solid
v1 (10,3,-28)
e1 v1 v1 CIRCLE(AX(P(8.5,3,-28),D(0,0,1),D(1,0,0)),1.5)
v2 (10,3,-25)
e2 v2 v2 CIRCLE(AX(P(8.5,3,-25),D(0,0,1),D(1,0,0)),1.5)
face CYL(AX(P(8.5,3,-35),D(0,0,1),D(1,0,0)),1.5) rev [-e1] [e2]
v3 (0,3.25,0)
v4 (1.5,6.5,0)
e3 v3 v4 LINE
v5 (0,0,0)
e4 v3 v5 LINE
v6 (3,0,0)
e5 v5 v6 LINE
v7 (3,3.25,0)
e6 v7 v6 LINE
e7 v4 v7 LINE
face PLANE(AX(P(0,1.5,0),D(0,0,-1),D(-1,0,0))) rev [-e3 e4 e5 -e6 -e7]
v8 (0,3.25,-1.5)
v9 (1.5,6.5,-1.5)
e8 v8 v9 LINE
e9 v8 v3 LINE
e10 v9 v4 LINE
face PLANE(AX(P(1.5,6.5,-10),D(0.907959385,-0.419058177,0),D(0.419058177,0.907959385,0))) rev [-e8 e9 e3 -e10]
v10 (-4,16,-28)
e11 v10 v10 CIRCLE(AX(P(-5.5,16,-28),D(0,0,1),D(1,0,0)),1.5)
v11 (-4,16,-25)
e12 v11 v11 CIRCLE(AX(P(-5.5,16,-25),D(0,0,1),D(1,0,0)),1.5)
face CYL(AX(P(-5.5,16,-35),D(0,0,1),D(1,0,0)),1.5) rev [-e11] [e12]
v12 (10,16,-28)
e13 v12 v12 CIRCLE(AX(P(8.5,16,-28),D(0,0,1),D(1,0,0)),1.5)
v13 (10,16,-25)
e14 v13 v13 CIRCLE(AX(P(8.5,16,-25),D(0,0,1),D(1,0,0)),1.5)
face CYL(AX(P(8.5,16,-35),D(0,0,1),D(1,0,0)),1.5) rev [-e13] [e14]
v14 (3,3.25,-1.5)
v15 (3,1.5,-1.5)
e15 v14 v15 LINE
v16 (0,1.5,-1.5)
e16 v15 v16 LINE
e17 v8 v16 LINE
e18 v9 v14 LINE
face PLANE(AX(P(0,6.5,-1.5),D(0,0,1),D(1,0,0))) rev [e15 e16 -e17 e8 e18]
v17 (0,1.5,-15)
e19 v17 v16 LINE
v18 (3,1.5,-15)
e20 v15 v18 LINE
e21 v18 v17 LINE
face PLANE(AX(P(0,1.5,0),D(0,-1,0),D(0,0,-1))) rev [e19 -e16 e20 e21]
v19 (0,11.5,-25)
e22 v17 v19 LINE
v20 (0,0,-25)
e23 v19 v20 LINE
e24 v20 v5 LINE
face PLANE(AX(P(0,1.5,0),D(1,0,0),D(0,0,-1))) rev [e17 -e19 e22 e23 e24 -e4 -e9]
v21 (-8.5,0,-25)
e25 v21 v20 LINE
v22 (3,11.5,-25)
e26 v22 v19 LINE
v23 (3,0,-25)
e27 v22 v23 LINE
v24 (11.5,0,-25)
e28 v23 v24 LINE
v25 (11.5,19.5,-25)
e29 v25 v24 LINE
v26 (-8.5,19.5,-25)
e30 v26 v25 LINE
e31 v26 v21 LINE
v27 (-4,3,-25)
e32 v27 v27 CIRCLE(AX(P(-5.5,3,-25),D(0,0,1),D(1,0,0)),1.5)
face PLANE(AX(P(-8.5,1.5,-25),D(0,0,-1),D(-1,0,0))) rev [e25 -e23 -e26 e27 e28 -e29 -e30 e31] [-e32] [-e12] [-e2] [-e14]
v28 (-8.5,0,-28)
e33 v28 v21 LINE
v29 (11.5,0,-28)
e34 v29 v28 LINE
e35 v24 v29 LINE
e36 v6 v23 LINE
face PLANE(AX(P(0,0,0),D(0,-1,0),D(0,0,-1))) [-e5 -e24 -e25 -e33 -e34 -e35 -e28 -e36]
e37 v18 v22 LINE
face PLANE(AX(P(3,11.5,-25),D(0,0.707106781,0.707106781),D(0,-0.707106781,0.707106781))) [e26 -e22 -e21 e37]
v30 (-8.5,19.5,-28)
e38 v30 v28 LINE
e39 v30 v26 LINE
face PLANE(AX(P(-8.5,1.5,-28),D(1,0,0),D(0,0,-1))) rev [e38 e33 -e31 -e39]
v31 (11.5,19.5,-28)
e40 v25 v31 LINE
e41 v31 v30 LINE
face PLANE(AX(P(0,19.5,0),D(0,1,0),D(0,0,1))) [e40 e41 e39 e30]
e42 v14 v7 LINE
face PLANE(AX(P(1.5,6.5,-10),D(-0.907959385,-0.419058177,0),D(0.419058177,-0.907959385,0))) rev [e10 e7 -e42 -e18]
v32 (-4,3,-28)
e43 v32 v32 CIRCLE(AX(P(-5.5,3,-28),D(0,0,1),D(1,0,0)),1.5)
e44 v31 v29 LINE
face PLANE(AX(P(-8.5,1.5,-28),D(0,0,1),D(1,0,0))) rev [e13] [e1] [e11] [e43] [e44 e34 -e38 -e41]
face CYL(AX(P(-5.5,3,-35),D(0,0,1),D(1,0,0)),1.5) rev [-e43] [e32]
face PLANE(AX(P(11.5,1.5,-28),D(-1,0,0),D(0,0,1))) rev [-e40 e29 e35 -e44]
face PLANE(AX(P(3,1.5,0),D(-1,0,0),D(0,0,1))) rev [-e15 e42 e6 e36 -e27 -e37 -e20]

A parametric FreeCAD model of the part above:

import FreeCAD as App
import Part
import Sketcher
from FreeCAD import Vector


def add_polygon(sketch, points):
    """Adds a closed chain of lines whose ends are joined by coincident constraints."""
    first, n = sketch.GeometryCount, len(points)
    for a, b in zip(points, points[1:] + points[:1]):
        sketch.addGeometry(Part.LineSegment(App.Vector(*a, 0), App.Vector(*b, 0)), False)
    for i in range(n):
        sketch.addConstraint(Sketcher.Constraint("Coincident", first + i, 2, first + (i + 1) % n, 1))

doc = App.newDocument("Part")
params = doc.addObject("Spreadsheet::Sheet", "Params")
for row, (alias, value) in enumerate([
    ("sketch1_width", "20 mm"),
    ("sketch1_width2", "3 mm"),
    ("sketch1_height", "25 mm"),
    ("pad1_length", "1.5 mm"),
    ("sketch2_width", "3 mm"),
    ("sketch2_height", "1.5 mm"),
    ("pad2_length", "5 mm"),
    ("sketch3_width", "20 mm"),
    ("sketch3_height", "3 mm"),
    ("pad3_length", "18 mm"),
    ("pocket1_length", "10 mm"),
    ("sketch5_diameter", "3 mm"),
    ("pocket2_length", "10 mm"),
    ("sketch6_width", "10 mm"),
    ("pad4_length", "3 mm"),
], start=1):
    params.set(f"A{row}", alias)
    params.set(f"B{row}", "=" + value)
    params.setAlias(f"B{row}", alias)

body = doc.addObject("PartDesign::Body", "Body")

sketch1 = body.newObject("Sketcher::SketchObject", "Sketch")
sketch1.AttachmentSupport = (doc.getObject("XZ_Plane"), [""])
sketch1.MapMode = "FlatFace"
add_polygon(sketch1, [(3, -25), (11.5, -25), (11.5, -28), (-8.5, -28), (-8.5, -25), (0, -25), (0, 0), (3, 0)])
sketch1.addConstraint([
    Sketcher.Constraint("Horizontal", 0),
    Sketcher.Constraint("Vertical", 1),
    Sketcher.Constraint("Horizontal", 2),
    Sketcher.Constraint("Vertical", 3),
    Sketcher.Constraint("Horizontal", 4),
    Sketcher.Constraint("Vertical", 5),
    Sketcher.Constraint("Horizontal", 6),
    Sketcher.Constraint("Vertical", 7),
    Sketcher.Constraint("Coincident", 5, 2, -1, 1),
    Sketcher.Constraint("Horizontal", 0, 2, 3, 2),
    Sketcher.Constraint("Equal", 0, 4),
    Sketcher.Constraint("Equal", 6, 1),
    Sketcher.Constraint("DistanceX", 2, 2, 2, 1, 20.0),
    Sketcher.Constraint("DistanceX", 6, 1, 6, 2, 3.0),
    Sketcher.Constraint("DistanceY", 5, 1, 5, 2, 25.0),
])
sketch1.setExpression("Constraints[20]", "Params.sketch1_width")
sketch1.setExpression("Constraints[21]", "Params.sketch1_width2")
sketch1.setExpression("Constraints[22]", "Params.sketch1_height")
pad1 = body.newObject("PartDesign::Pad", "Pad")
pad1.Profile = sketch1
pad1.setExpression("Length", "Params.pad1_length")
pad1.Reversed = True

sketch2 = body.newObject("Sketcher::SketchObject", "Sketch001")
sketch2.AttachmentSupport = (doc.getObject("XZ_Plane"), [""])
sketch2.MapMode = "FlatFace"
sketch2.AttachmentOffset = App.Placement(Vector(0, 0, -1.5), App.Rotation())
add_polygon(sketch2, [(0, -1.5), (0, 0), (3, 0), (3, -1.5)])
sketch2.addConstraint([
    Sketcher.Constraint("Vertical", 0),
    Sketcher.Constraint("Horizontal", 1),
    Sketcher.Constraint("Vertical", 2),
    Sketcher.Constraint("Horizontal", 3),
    Sketcher.Constraint("Coincident", 0, 2, -1, 1),
    Sketcher.Constraint("DistanceX", 1, 1, 1, 2, 3.0),
    Sketcher.Constraint("DistanceY", 0, 1, 0, 2, 1.5),
])
sketch2.setExpression("Constraints[9]", "Params.sketch2_width")
sketch2.setExpression("Constraints[10]", "Params.sketch2_height")
pad2 = body.newObject("PartDesign::Pad", "Pad001")
pad2.Profile = sketch2
pad2.setExpression("Length", "Params.pad2_length")
pad2.Reversed = True

sketch3 = body.newObject("Sketcher::SketchObject", "Sketch002")
sketch3.AttachmentSupport = (doc.getObject("XZ_Plane"), [""])
sketch3.MapMode = "FlatFace"
sketch3.AttachmentOffset = App.Placement(Vector(0, 0, -1.5), App.Rotation())
add_polygon(sketch3, [(-8.5, -28), (-8.5, -25), (11.5, -25), (11.5, -28)])
sketch3.addConstraint([
    Sketcher.Constraint("Vertical", 0),
    Sketcher.Constraint("Horizontal", 1),
    Sketcher.Constraint("Vertical", 2),
    Sketcher.Constraint("Horizontal", 3),
    Sketcher.Constraint("DistanceX", 1, 1, 1, 2, 20.0),
    Sketcher.Constraint("DistanceY", 0, 1, 0, 2, 3.0),
    Sketcher.Constraint("DistanceY", 0, 2, -1, 1, 25.0),
    Sketcher.Constraint("DistanceX", 0, 2, -1, 1, 8.5),
])
sketch3.setExpression("Constraints[8]", "Params.sketch3_width")
sketch3.setExpression("Constraints[9]", "Params.sketch3_height")
pad3 = body.newObject("PartDesign::Pad", "Pad002")
pad3.Profile = sketch3
pad3.setExpression("Length", "Params.pad3_length")
pad3.Reversed = True

sketch4 = body.newObject("Sketcher::SketchObject", "Sketch003")
sketch4.AttachmentSupport = (doc.getObject("XY_Plane"), [""])
sketch4.MapMode = "FlatFace"
add_polygon(sketch4, [(0, 3.2), (1.5, 6.5), (3, 3.2), (5.7, 3.2), (5.3, 8.7), (-2, 8.1), (-1.7, 3.2)])
sketch4.addConstraint([
    Sketcher.Constraint("Horizontal", 2),
    Sketcher.Constraint("Horizontal", 6),
    Sketcher.Constraint("PointOnObject", 6, 2, -2),
    Sketcher.Constraint("Perpendicular", 3, 4),
    Sketcher.Constraint("Perpendicular", 4, 5),
    Sketcher.Constraint("Horizontal", 2, 2, 5, 2),
    Sketcher.Constraint("Equal", 0, 1),
    Sketcher.Constraint("DistanceX", -1, 1, 1, 2, 3.0),
    Sketcher.Constraint("DistanceY", -1, 1, 0, 2, 6.5),
    Sketcher.Constraint("DistanceY", -1, 1, 1, 2, 3.25),
    Sketcher.Constraint("Distance", 3, 5.44168),
    Sketcher.Constraint("Distance", 5, 4.891152),
    Sketcher.Constraint("DistanceX", 2, 1, 2, 2, 2.709428),
    Sketcher.Constraint("DistanceX", 6, 1, 6, 2, 1.660876),
])
pocket1 = body.newObject("PartDesign::Pocket", "Pocket")
pocket1.Profile = sketch4
pocket1.setExpression("Length", "Params.pocket1_length")

sketch5 = body.newObject("Sketcher::SketchObject", "Sketch004")
sketch5.AttachmentSupport = (doc.getObject("XY_Plane"), [""])
sketch5.MapMode = "FlatFace"
sketch5.AttachmentOffset = App.Placement(Vector(0, 0, -25), App.Rotation())
sketch5.addGeometry([
    Part.Circle(Vector(-5.5, 3, 0), Vector(0, 0, 1), 1.5),
    Part.Circle(Vector(8.5, 3, 0), Vector(0, 0, 1), 1.5),
    Part.Circle(Vector(8.5, 16, 0), Vector(0, 0, 1), 1.5),
    Part.Circle(Vector(-5.5, 16, 0), Vector(0, 0, 1), 1.5),
], False)
sketch5.addConstraint([
    Sketcher.Constraint("Equal", 0, 1),
    Sketcher.Constraint("Equal", 1, 2),
    Sketcher.Constraint("Equal", 2, 3),
    Sketcher.Constraint("Horizontal", 0, 3, 1, 3),
    Sketcher.Constraint("Horizontal", 2, 3, 3, 3),
    Sketcher.Constraint("Vertical", 1, 3, 2, 3),
    Sketcher.Constraint("Vertical", 0, 3, 3, 3),
    Sketcher.Constraint("Diameter", 0, 3.0),
    Sketcher.Constraint("DistanceY", -1, 1, 0, 3, 3.0),
    Sketcher.Constraint("DistanceY", -1, 1, 2, 3, 16.0),
    Sketcher.Constraint("DistanceX", 0, 3, 1, 3, 14.0),
    Sketcher.Constraint("DistanceX", 0, 3, -1, 1, 5.5),
])
sketch5.setExpression("Constraints[7]", "Params.sketch5_diameter")
pocket2 = body.newObject("PartDesign::Pocket", "Pocket001")
pocket2.Profile = sketch5
pocket2.setExpression("Length", "Params.pocket2_length")

sketch6 = body.newObject("Sketcher::SketchObject", "Sketch005")
sketch6.AttachmentSupport = (doc.getObject("YZ_Plane"), [""])
sketch6.MapMode = "FlatFace"
add_polygon(sketch6, [(12, -25), (2, -25), (2, -15)])
sketch6.addConstraint([
    Sketcher.Constraint("Horizontal", 0),
    Sketcher.Constraint("Vertical", 1),
    Sketcher.Constraint("Equal", 0, 1),
    Sketcher.Constraint("DistanceX", 0, 2, 0, 1, 10.0),
    Sketcher.Constraint("DistanceY", 0, 2, -1, 1, 25.0),
    Sketcher.Constraint("DistanceX", -1, 1, 0, 2, 1.5),
])
sketch6.setExpression("Constraints[6]", "Params.sketch6_width")
pad4 = body.newObject("PartDesign::Pad", "Pad003")
pad4.Profile = sketch6
pad4.setExpression("Length", "Params.pad4_length")

doc.recompute()
